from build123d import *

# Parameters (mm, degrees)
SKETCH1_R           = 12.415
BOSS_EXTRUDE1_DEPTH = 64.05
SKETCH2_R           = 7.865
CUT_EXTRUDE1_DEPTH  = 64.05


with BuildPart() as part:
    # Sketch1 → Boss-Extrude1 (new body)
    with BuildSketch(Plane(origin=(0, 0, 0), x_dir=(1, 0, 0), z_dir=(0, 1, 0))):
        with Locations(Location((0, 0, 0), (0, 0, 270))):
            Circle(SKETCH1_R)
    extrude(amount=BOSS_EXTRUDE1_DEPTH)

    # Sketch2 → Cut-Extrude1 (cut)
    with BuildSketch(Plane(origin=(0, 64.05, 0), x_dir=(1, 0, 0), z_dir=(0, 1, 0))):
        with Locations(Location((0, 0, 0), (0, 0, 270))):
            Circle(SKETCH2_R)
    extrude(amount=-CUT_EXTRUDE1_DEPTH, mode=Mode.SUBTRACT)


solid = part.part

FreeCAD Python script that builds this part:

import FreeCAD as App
import Part
import Sketcher

V = App.Vector
Q = App.Units.Quantity

doc = App.newDocument("Part")
body = doc.addObject("PartDesign::Body", "Body")

# Sketch on XZ plane
sketch1 = body.newObject("Sketcher::SketchObject", "Sketch")
sketch1.AttachmentSupport = (doc.getObject("XZ_Plane"), [""])
sketch1.MapMode = "FlatFace"
sketch1.addGeometry(Part.Circle(V(0, 0, 0), V(0, 0, 1), 12), False)
sketch1.addConstraint([
    Sketcher.Constraint("Coincident", 0, 3, -1, 1),
    Sketcher.Constraint("Diameter", 0, Q("24.83 mm")),
])
pad1 = body.newObject("PartDesign::Pad", "Pad")
pad1.Profile = sketch1
pad1.Length = 64.05
pad1.Reversed = True

# Sketch on XZ plane
sketch2 = body.newObject("Sketcher::SketchObject", "Sketch001")
sketch2.AttachmentSupport = (doc.getObject("XZ_Plane"), [""])
sketch2.MapMode = "FlatFace"
sketch2.AttachmentOffset = App.Placement(V(0, 0, -64.05), App.Rotation())
sketch2.addGeometry(Part.Circle(V(0, 0, 0), V(0, 0, 1), 8), False)
sketch2.addConstraint([
    Sketcher.Constraint("Coincident", 0, 3, -1, 1),
    Sketcher.Constraint("Diameter", 0, Q("15.73 mm")),
])
pocket1 = body.newObject("PartDesign::Pocket", "Pocket")
pocket1.Profile = sketch2
pocket1.Length = 64.05
pocket1.Reversed = True

doc.recompute()
